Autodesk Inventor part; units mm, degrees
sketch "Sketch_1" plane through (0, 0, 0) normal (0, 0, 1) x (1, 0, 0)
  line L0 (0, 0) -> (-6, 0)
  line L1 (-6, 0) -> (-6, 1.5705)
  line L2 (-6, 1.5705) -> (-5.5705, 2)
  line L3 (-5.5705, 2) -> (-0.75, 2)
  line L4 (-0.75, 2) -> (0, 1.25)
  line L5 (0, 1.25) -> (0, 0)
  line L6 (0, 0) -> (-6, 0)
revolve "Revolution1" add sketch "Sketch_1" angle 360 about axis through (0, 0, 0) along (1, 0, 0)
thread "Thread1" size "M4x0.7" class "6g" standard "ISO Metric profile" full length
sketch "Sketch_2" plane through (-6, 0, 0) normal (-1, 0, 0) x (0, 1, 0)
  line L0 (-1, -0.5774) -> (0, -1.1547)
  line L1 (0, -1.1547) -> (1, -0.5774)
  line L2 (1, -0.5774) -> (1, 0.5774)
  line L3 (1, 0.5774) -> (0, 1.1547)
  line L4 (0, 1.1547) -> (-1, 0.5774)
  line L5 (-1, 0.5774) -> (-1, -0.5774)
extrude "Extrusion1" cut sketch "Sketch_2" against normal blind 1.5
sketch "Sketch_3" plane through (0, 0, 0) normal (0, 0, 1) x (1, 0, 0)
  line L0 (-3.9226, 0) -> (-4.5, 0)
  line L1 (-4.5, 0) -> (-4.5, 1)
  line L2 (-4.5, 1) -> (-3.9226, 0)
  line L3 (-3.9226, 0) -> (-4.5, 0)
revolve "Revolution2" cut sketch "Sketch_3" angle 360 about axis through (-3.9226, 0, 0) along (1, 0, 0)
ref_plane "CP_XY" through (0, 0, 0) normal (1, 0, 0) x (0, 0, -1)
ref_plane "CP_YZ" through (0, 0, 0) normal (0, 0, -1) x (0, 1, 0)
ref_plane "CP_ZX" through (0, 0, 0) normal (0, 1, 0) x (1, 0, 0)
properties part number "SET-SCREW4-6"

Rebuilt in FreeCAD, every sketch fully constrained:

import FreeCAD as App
import Part
import Sketcher

V = App.Vector
Q = App.Units.Quantity

doc = App.newDocument("Part")
params = doc.addObject("Spreadsheet::Sheet", "Params")
for row, (alias, value) in enumerate([
    ("sketch1_width", "6 mm"),
    ("sketch1_height", "1.25 mm"),
    ("revolution_angle", "360 deg"),
    ("pocket1_length", "1.5 mm"),
    ("sketch3_height", "1 mm"),
    ("groove_angle", "360 deg"),
], start=1):
    params.set(f"A{row}", alias)
    params.set(f"B{row}", "=" + value)
    params.setAlias(f"B{row}", alias)

body = doc.addObject("PartDesign::Body", "Body")

# Sketch on XY plane
sketch1 = body.newObject("Sketcher::SketchObject", "Sketch")
sketch1.AttachmentSupport = (doc.getObject("XY_Plane"), [""])
sketch1.MapMode = "FlatFace"
sketch1.addGeometry([
    Part.LineSegment(V(-6, 0, 0), V(0, 0, 0)),  # 0
    Part.LineSegment(V(0, 0, 0), V(0, 1.25, 0)),  # 1
    Part.LineSegment(V(0, 1.25, 0), V(-0.75, 2, 0)),  # 2
    Part.LineSegment(V(-0.75, 2, 0), V(-5.5705, 2, 0)),  # 3
    Part.LineSegment(V(-5.5705, 2, 0), V(-6, 1.5705, 0)),  # 4
    Part.LineSegment(V(-6, 1.5705, 0), V(-6, 0, 0)),  # 5
], False)
sketch1.addConstraint([
    Sketcher.Constraint("Coincident", 0, 2, 1, 1),
    Sketcher.Constraint("Coincident", 1, 2, 2, 1),
    Sketcher.Constraint("Coincident", 2, 2, 3, 1),
    Sketcher.Constraint("Coincident", 3, 2, 4, 1),
    Sketcher.Constraint("Coincident", 4, 2, 5, 1),
    Sketcher.Constraint("Coincident", 5, 2, 0, 1),
    Sketcher.Constraint("Horizontal", 0),
    Sketcher.Constraint("Vertical", 1),
    Sketcher.Constraint("Horizontal", 3),
    Sketcher.Constraint("Vertical", 5),
    Sketcher.Constraint("Coincident", 0, 2, -1, 1),
    Sketcher.Constraint("Perpendicular", 2, 4),
    Sketcher.Constraint("DistanceX", 0, 1, 0, 2, Q("6 mm")),
    Sketcher.Constraint("Angle", 2, Q("135 deg")),
    Sketcher.Constraint("DistanceY", -1, 1, 2, 2, Q("2 mm")),
    Sketcher.Constraint("DistanceY", 1, 1, 1, 2, Q("1.25 mm")),
    Sketcher.Constraint("DistanceX", 3, 2, 3, 1, Q("4.8205 mm")),
])
sketch1.setExpression("Constraints[12]", "Params.sketch1_width")
sketch1.setExpression("Constraints[15]", "Params.sketch1_height")
revolution = body.newObject("PartDesign::Revolution", "Revolution")
revolution.Profile = sketch1
revolution.ReferenceAxis = (sketch1, ["H_Axis"])
revolution.setExpression("Angle", "Params.revolution_angle")

# Sketch on YZ plane
sketch2 = body.newObject("Sketcher::SketchObject", "Sketch001")
sketch2.AttachmentSupport = (doc.getObject("YZ_Plane"), [""])
sketch2.MapMode = "FlatFace"
sketch2.AttachmentOffset = App.Placement(V(0, 0, -6), App.Rotation())
sketch2.addGeometry([
    Part.LineSegment(V(-1, -0.5774, 0), V(-1, 0.5774, 0)),  # 0
    Part.LineSegment(V(-1, 0.5774, 0), V(0, 1.1547, 0)),  # 1
    Part.LineSegment(V(0, 1.1547, 0), V(1, 0.5774, 0)),  # 2
    Part.LineSegment(V(1, 0.5774, 0), V(1, -0.5774, 0)),  # 3
    Part.LineSegment(V(1, -0.5774, 0), V(0, -1.1547, 0)),  # 4
    Part.LineSegment(V(0, -1.1547, 0), V(-1, -0.5774, 0)),  # 5
], False)
sketch2.addConstraint([
    Sketcher.Constraint("Coincident", 0, 2, 1, 1),
    Sketcher.Constraint("Coincident", 1, 2, 2, 1),
    Sketcher.Constraint("Coincident", 2, 2, 3, 1),
    Sketcher.Constraint("Coincident", 3, 2, 4, 1),
    Sketcher.Constraint("Coincident", 4, 2, 5, 1),
    Sketcher.Constraint("Coincident", 5, 2, 0, 1),
    Sketcher.Constraint("Vertical", 0),
    Sketcher.Constraint("Vertical", 3),
    Sketcher.Constraint("Symmetric", 0, 2, 3, 2, -1, 1),
    Sketcher.Constraint("Symmetric", 1, 2, 4, 2, -1, 1),
    Sketcher.Constraint("PointOnObject", 1, 2, -2),
    Sketcher.Constraint("Parallel", 2, 5),
    Sketcher.Constraint("Horizontal", 0, 2, 2, 2),
    Sketcher.Constraint("DistanceX", 0, 2, -1, 1, Q("1 mm")),
    Sketcher.Constraint("DistanceY", 0, 1, 0, 2, Q("1.1548 mm")),
    Sketcher.Constraint("DistanceY", 3, 2, 1, 2, Q("1.732 mm")),
])
pocket1 = body.newObject("PartDesign::Pocket", "Pocket")
pocket1.Profile = sketch2
pocket1.setExpression("Length", "Params.pocket1_length")
pocket1.Reversed = True

# Sketch on XY plane
sketch3 = body.newObject("Sketcher::SketchObject", "Sketch002")
sketch3.AttachmentSupport = (doc.getObject("XY_Plane"), [""])
sketch3.MapMode = "FlatFace"
sketch3.addGeometry([
    Part.LineSegment(V(-4.5, 0, 0), V(-3.9226, 0, 0)),
    Part.LineSegment(V(-3.9226, 0, 0), V(-4.5, 1, 0)),
    Part.LineSegment(V(-4.5, 1, 0), V(-4.5, 0, 0)),
], False)
sketch3.addConstraint([
    Sketcher.Constraint("Coincident", 0, 2, 1, 1),
    Sketcher.Constraint("Coincident", 1, 2, 2, 1),
    Sketcher.Constraint("Coincident", 2, 2, 0, 1),
    Sketcher.Constraint("Horizontal", 0),
    Sketcher.Constraint("Vertical", 2),
    Sketcher.Constraint("PointOnObject", 0, 2, -1),
    Sketcher.Constraint("DistanceY", 2, 2, 2, 1, Q("1 mm")),
    Sketcher.Constraint("DistanceX", 1, 2, -1, 1, Q("4.5 mm")),
    Sketcher.Constraint("DistanceX", 0, 1, 0, 2, Q("0.5774 mm")),
])
sketch3.setExpression("Constraints[6]", "Params.sketch3_height")
groove = body.newObject("PartDesign::Groove", "Groove")
groove.Profile = sketch3
groove.ReferenceAxis = (sketch3, ["H_Axis"])
groove.setExpression("Angle", "Params.groove_angle")

doc.recompute()
